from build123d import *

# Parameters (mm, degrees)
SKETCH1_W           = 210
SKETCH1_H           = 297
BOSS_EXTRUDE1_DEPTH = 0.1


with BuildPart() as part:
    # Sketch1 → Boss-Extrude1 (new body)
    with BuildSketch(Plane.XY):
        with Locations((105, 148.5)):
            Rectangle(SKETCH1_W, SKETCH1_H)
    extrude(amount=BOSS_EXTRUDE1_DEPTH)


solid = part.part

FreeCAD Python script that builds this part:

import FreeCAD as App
import Part
import Sketcher
from FreeCAD import Vector

doc = App.newDocument("Part")
body = doc.addObject("PartDesign::Body", "Body")

sketch1 = body.newObject("Sketcher::SketchObject", "Sketch")
sketch1.AttachmentSupport = (doc.getObject("XY_Plane"), [""])
sketch1.MapMode = "FlatFace"
sketch1.addGeometry(Part.LineSegment(Vector(0, 297, 0), Vector(0, 0, 0)), False)
sketch1.addGeometry(Part.LineSegment(Vector(0, 0, 0), Vector(210, 0, 0)), False)
sketch1.addGeometry(Part.LineSegment(Vector(210, 0, 0), Vector(210, 297, 0)), False)
sketch1.addGeometry(Part.LineSegment(Vector(210, 297, 0), Vector(0, 297, 0)), False)
sketch1.addConstraint(Sketcher.Constraint("Coincident", 0, 2, 1, 1))
sketch1.addConstraint(Sketcher.Constraint("Coincident", 1, 2, 2, 1))
sketch1.addConstraint(Sketcher.Constraint("Coincident", 2, 2, 3, 1))
sketch1.addConstraint(Sketcher.Constraint("Coincident", 3, 2, 0, 1))
sketch1.addConstraint(Sketcher.Constraint("Vertical", 0))
sketch1.addConstraint(Sketcher.Constraint("Horizontal", 1))
sketch1.addConstraint(Sketcher.Constraint("Vertical", 2))
sketch1.addConstraint(Sketcher.Constraint("Horizontal", 3))
sketch1.addConstraint(Sketcher.Constraint("Coincident", 0, 2, -1, 1))
sketch1.addConstraint(Sketcher.Constraint("DistanceX", 1, 1, 1, 2, 210.0))
sketch1.addConstraint(Sketcher.Constraint("DistanceY", 0, 2, 0, 1, 297.0))
pad1 = body.newObject("PartDesign::Pad", "Pad")
pad1.Profile = sketch1
pad1.Length = 0.1

doc.recompute()
